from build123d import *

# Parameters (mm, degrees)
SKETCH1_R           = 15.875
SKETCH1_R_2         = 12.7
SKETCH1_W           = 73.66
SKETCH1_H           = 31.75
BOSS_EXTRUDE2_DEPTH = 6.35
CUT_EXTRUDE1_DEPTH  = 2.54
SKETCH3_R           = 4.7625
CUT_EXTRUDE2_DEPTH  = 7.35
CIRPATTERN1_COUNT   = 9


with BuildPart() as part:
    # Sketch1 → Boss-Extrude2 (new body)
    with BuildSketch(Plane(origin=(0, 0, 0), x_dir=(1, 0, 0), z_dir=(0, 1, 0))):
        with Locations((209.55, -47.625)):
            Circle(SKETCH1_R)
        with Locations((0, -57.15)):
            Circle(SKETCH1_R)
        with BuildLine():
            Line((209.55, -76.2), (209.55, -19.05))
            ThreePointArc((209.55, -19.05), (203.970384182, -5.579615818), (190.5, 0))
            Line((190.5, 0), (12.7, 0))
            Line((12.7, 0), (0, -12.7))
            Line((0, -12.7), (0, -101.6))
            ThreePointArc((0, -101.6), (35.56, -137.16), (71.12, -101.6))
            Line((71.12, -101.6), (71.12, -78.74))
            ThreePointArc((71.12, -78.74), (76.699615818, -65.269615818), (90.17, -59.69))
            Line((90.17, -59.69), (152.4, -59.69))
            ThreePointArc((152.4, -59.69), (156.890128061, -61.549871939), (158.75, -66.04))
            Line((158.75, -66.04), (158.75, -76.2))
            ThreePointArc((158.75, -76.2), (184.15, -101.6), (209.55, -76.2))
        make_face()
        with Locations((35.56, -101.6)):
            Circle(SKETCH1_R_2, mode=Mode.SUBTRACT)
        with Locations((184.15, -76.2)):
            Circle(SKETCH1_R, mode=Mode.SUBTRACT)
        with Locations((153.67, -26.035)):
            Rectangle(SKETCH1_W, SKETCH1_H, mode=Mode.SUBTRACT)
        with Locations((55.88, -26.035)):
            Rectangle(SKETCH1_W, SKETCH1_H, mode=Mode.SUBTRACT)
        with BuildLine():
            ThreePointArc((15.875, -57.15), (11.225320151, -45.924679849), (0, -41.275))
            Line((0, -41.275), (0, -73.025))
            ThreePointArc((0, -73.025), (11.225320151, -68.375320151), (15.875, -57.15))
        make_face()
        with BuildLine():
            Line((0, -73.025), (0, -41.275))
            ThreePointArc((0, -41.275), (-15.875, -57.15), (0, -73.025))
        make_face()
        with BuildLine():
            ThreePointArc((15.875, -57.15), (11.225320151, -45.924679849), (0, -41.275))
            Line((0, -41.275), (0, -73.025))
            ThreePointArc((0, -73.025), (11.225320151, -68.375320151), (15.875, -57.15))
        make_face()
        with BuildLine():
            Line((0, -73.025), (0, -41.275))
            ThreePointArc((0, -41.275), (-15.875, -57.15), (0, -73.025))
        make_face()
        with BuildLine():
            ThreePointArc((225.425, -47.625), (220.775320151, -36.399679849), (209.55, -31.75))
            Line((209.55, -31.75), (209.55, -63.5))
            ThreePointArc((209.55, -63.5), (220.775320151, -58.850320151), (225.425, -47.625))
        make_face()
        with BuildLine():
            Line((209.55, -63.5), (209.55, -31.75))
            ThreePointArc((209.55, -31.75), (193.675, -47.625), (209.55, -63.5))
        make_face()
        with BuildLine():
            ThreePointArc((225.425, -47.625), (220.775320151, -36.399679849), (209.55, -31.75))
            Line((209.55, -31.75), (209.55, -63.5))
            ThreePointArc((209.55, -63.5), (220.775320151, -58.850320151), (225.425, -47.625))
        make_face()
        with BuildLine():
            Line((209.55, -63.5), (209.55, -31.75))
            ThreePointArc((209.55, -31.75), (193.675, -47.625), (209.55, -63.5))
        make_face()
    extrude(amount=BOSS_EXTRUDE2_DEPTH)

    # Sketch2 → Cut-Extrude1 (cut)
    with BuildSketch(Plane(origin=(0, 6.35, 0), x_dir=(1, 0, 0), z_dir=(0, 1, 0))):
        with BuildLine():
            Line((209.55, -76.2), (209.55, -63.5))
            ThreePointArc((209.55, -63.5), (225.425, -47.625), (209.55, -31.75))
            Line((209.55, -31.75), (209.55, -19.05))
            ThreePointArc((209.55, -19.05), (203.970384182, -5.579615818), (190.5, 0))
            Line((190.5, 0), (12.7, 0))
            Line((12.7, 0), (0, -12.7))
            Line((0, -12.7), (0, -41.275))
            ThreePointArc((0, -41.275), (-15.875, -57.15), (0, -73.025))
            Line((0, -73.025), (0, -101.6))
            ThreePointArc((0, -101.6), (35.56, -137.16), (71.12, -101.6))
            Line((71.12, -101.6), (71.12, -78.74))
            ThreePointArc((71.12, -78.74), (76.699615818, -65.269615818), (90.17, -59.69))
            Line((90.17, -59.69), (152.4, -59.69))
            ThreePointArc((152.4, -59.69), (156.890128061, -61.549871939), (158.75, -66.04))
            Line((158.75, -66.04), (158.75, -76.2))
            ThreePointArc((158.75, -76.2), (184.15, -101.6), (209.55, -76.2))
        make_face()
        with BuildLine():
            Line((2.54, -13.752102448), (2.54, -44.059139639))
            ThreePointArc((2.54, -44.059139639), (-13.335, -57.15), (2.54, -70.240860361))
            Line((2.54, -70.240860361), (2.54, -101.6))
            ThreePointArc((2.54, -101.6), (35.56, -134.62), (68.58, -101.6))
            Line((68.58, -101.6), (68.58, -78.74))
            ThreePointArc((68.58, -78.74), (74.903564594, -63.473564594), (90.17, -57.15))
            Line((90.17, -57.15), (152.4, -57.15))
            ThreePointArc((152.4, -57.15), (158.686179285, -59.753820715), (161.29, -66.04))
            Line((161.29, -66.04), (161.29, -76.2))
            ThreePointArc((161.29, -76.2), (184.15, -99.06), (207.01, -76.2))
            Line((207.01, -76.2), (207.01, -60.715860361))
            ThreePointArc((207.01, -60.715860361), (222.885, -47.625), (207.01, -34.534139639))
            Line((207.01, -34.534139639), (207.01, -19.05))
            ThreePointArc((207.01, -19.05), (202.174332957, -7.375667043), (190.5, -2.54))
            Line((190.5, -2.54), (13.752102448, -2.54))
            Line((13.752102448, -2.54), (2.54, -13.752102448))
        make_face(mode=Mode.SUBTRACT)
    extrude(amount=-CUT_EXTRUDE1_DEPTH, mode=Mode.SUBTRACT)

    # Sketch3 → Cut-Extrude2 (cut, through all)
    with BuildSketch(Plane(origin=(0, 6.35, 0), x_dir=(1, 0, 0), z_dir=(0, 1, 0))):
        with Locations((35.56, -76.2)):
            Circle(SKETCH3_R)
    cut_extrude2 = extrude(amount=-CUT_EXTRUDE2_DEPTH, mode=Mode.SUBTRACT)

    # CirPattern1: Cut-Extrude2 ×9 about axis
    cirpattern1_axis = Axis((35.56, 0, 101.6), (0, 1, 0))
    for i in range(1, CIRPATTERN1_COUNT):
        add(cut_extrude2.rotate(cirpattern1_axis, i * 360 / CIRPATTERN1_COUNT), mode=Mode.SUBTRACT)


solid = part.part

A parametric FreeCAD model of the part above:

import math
import FreeCAD as App
import Part
import Sketcher

V = App.Vector
Q = App.Units.Quantity


def add_polygon(sketch, points):
    """Adds a closed chain of lines whose ends are joined by coincident constraints."""
    first, n = sketch.GeometryCount, len(points)
    for a, b in zip(points, points[1:] + points[:1]):
        sketch.addGeometry(Part.LineSegment(App.Vector(*a, 0), App.Vector(*b, 0)), False)
    for i in range(n):
        sketch.addConstraint(Sketcher.Constraint("Coincident", first + i, 2, first + (i + 1) % n, 1))

doc = App.newDocument("Part")
body = doc.addObject("PartDesign::Body", "Body")

# Sketch on XZ plane
sketch1 = body.newObject("Sketcher::SketchObject", "Sketch")
sketch1.AttachmentSupport = (doc.getObject("XZ_Plane"), [""])
sketch1.MapMode = "FlatFace"
sketch1.addGeometry(Part.ArcOfCircle(Part.Circle(V(36, 102, 0), V(0, 0, 1), 36), math.radians(0), math.radians(180)), False)  # 0
sketch1.addGeometry(Part.LineSegment(V(71, 102, 0), V(71, 79, 0)), False)  # 1
sketch1.addGeometry(Part.ArcOfCircle(Part.Circle(V(90, 79, 0), V(0, 0, 1), 19), math.radians(180), math.radians(270)), False)  # 2
sketch1.addGeometry(Part.LineSegment(V(90, 60, 0), V(152, 60, 0)), False)  # 3
sketch1.addGeometry(Part.ArcOfCircle(Part.Circle(V(152, 66, 0), V(0, 0, 1), 6), math.radians(-90), math.radians(0)), False)  # 4
sketch1.addGeometry(Part.LineSegment(V(159, 66, 0), V(159, 76, 0)), False)  # 5
sketch1.addGeometry(Part.ArcOfCircle(Part.Circle(V(184, 76, 0), V(0, 0, 1), 25), math.radians(0), math.radians(180)), False)  # 6
sketch1.addGeometry(Part.LineSegment(V(210, 76, 0), V(210, 64, 0)), False)  # 7
sketch1.addGeometry(Part.ArcOfCircle(Part.Circle(V(210, 48, 0), V(0, 0, 1), 16), math.radians(-90), math.radians(90)), False)  # 8
sketch1.addGeometry(Part.LineSegment(V(210, 32, 0), V(210, 19, 0)), False)  # 9
sketch1.addGeometry(Part.ArcOfCircle(Part.Circle(V(191, 19, 0), V(0, 0, 1), 19), math.radians(-90), math.radians(0)), False)  # 10
sketch1.addGeometry(Part.LineSegment(V(190, 0, 0), V(13, 0, 0)), False)  # 11
sketch1.addGeometry(Part.LineSegment(V(13, 0, 0), V(0, 13, 0)), False)  # 12
sketch1.addGeometry(Part.LineSegment(V(0, 13, 0), V(0, 41, 0)), False)  # 13
sketch1.addGeometry(Part.ArcOfCircle(Part.Circle(V(0, 57, 0), V(0, 0, 1), 16), math.radians(90), math.radians(270)), False)  # 14
sketch1.addGeometry(Part.LineSegment(V(0, 73, 0), V(0, 102, 0)), False)  # 15
sketch1.addGeometry(Part.Circle(V(36, 102, 0), V(0, 0, 1), 13), False)  # 16
sketch1.addGeometry(Part.Circle(V(184, 76, 0), V(0, 0, 1), 16), False)  # 17
add_polygon(sketch1, [(93, 42), (19, 42), (19, 10), (93, 10)])  # lines 18-21
add_polygon(sketch1, [(190, 42), (117, 42), (117, 10), (190, 10)])  # lines 22-25
sketch1.addConstraint([
    Sketcher.Constraint("Tangent", 0, 1, 1, 1),
    Sketcher.Constraint("Tangent", 1, 2, 2, 1),
    Sketcher.Constraint("Tangent", 2, 2, 3, 1),
    Sketcher.Constraint("Tangent", 3, 2, 4, 1),
    Sketcher.Constraint("Tangent", 4, 2, 5, 1),
    Sketcher.Constraint("Tangent", 5, 2, 6, 2),
    Sketcher.Constraint("Tangent", 6, 1, 7, 1),
    Sketcher.Constraint("Coincident", 7, 2, 8, 2),
    Sketcher.Constraint("Coincident", 8, 1, 9, 1),
    Sketcher.Constraint("Tangent", 9, 2, 10, 2),
    Sketcher.Constraint("Tangent", 10, 1, 11, 1),
    Sketcher.Constraint("Coincident", 11, 2, 12, 1),
    Sketcher.Constraint("Coincident", 12, 2, 13, 1),
    Sketcher.Constraint("Coincident", 13, 2, 14, 2),
    Sketcher.Constraint("Coincident", 14, 1, 15, 1),
    Sketcher.Constraint("Tangent", 15, 2, 0, 2),
    Sketcher.Constraint("Vertical", 1),
    Sketcher.Constraint("Horizontal", 3),
    Sketcher.Constraint("Vertical", 5),
    Sketcher.Constraint("Vertical", 7),
    Sketcher.Constraint("Vertical", 9),
    Sketcher.Constraint("Horizontal", 11),
    Sketcher.Constraint("Vertical", 13),
    Sketcher.Constraint("Vertical", 15),
    Sketcher.Constraint("Horizontal", 18),
    Sketcher.Constraint("Vertical", 19),
    Sketcher.Constraint("Horizontal", 20),
    Sketcher.Constraint("Vertical", 21),
    Sketcher.Constraint("Horizontal", 22),
    Sketcher.Constraint("Vertical", 23),
    Sketcher.Constraint("Horizontal", 24),
    Sketcher.Constraint("Vertical", 25),
    Sketcher.Constraint("Coincident", 16, 3, 0, 3),
    Sketcher.Constraint("Coincident", 17, 3, 6, 3),
    Sketcher.Constraint("Equal", 2, 10),
    Sketcher.Constraint("Equal", 8, 14),
    Sketcher.Constraint("Equal", 14, 17),
    Sketcher.Constraint("PointOnObject", 14, 3, -2),
    Sketcher.Constraint("PointOnObject", 10, 1, -1),
    Sketcher.Constraint("PointOnObject", 12, 2, -2),
    Sketcher.Constraint("PointOnObject", 14, 1, -2),
    Sketcher.Constraint("Horizontal", 21, 2, 22, 2),
    Sketcher.Constraint("Horizontal", 20, 2, 23, 2),
    Sketcher.Constraint("Vertical", 8, 3, 6, 1),
    Sketcher.Constraint("Vertical", 7, 2, 8, 1),
    Sketcher.Constraint("Vertical", 10, 1, 24, 2),
    Sketcher.Constraint("Equal", 20, 22),
    Sketcher.Constraint("Equal", 7, 9),
    Sketcher.Constraint("Equal", 13, 15),
    Sketcher.Constraint("Diameter", 16, Q("1 in")),
    Sketcher.Constraint("Radius", 6, Q("1 in")),
    Sketcher.Constraint("Radius", 0, Q("1.4 in")),
    Sketcher.Constraint("Diameter", 17, Q("1.25 in")),
    Sketcher.Constraint("DistanceX", 11, 2, 11, 1, Q("7 in")),
    Sketcher.Constraint("Radius", 2, Q("0.75 in")),
    Sketcher.Constraint("Radius", 4, Q("0.25 in")),
    Sketcher.Constraint("DistanceX", 18, 2, 18, 1, Q("2.9 in")),
    Sketcher.Constraint("DistanceY", 1, 2, 1, 1, Q("0.9 in")),
    Sketcher.Constraint("DistanceY", 5, 1, 5, 2, Q("0.4 in")),
    Sketcher.Constraint("DistanceY", 7, 2, 7, 1, Q("0.5 in")),
    Sketcher.Constraint("DistanceX", -1, 1, 4, 3, Q("6 in")),
    Sketcher.Constraint("Angle", 12, Q("135 deg")),
    Sketcher.Constraint("DistanceY", 19, 2, 19, 1, Q("1.25 in")),
    Sketcher.Constraint("DistanceY", -1, 1, 19, 2, Q("0.4 in")),
    Sketcher.Constraint("DistanceX", 2, 2, 20, 2, Q("0.1 in")),
])
pad1 = body.newObject("PartDesign::Pad", "Pad")
pad1.Profile = sketch1
pad1.Length = Q("0.25 in")
pad1.Reversed = True

# Sketch on XZ plane
sketch2 = body.newObject("Sketcher::SketchObject", "Sketch001")
sketch2.AttachmentSupport = (doc.getObject("XZ_Plane"), [""])
sketch2.MapMode = "FlatFace"
sketch2.AttachmentOffset = App.Placement(V(0, 0, -0.25 * 25.4), App.Rotation())
sketch2.addGeometry([
    Part.LineSegment(V(210, 76, 0), V(210, 64, 0)),  # 0
    Part.ArcOfCircle(Part.Circle(V(210, 48, 0), V(0, 0, 1), 16), math.radians(-90), math.radians(90)),  # 1
    Part.LineSegment(V(210, 32, 0), V(210, 19, 0)),  # 2
    Part.ArcOfCircle(Part.Circle(V(191, 19, 0), V(0, 0, 1), 19), math.radians(-90), math.radians(0)),  # 3
    Part.LineSegment(V(190, 0, 0), V(13, 0, 0)),  # 4
    Part.LineSegment(V(13, 0, 0), V(0, 13, 0)),  # 5
    Part.LineSegment(V(0, 13, 0), V(0, 41, 0)),  # 6
    Part.ArcOfCircle(Part.Circle(V(0, 57, 0), V(0, 0, 1), 16), math.radians(90), math.radians(270)),  # 7
    Part.LineSegment(V(0, 73, 0), V(0, 102, 0)),  # 8
    Part.ArcOfCircle(Part.Circle(V(36, 102, 0), V(0, 0, 1), 36), math.radians(0), math.radians(180)),  # 9
    Part.LineSegment(V(71, 102, 0), V(71, 79, 0)),  # 10
    Part.ArcOfCircle(Part.Circle(V(90, 79, 0), V(0, 0, 1), 19), math.radians(180), math.radians(270)),  # 11
    Part.LineSegment(V(90, 60, 0), V(152, 60, 0)),  # 12
    Part.ArcOfCircle(Part.Circle(V(152, 66, 0), V(0, 0, 1), 6), math.radians(-90), math.radians(0)),  # 13
    Part.LineSegment(V(159, 66, 0), V(159, 76, 0)),  # 14
    Part.ArcOfCircle(Part.Circle(V(184, 76, 0), V(0, 0, 1), 25), math.radians(0), math.radians(180)),  # 15
    Part.LineSegment(V(3, 44, 0), V(3, 14, 0)),  # 16
    Part.LineSegment(V(3, 14, 0), V(14, 3, 0)),  # 17
    Part.LineSegment(V(14, 3, 0), V(190, 3, 0)),  # 18
    Part.ArcOfCircle(Part.Circle(V(190, 19, 0), V(0, 0, 1), 17), math.radians(-90), math.radians(0)),  # 19
    Part.LineSegment(V(207, 19, 0), V(207, 35, 0)),  # 20
    Part.ArcOfCircle(Part.Circle(V(210, 48, 0), V(0, 0, 1), 13), math.radians(-101), math.radians(101)),  # 21
    Part.LineSegment(V(207, 61, 0), V(207, 76, 0)),  # 22
    Part.ArcOfCircle(Part.Circle(V(184, 76, 0), V(0, 0, 1), 23), math.radians(0), math.radians(180)),  # 23
    Part.LineSegment(V(161, 76, 0), V(161, 66, 0)),  # 24
    Part.ArcOfCircle(Part.Circle(V(152, 66, 0), V(0, 0, 1), 9), math.radians(-90), math.radians(0)),  # 25
    Part.LineSegment(V(152, 57, 0), V(90, 57, 0)),  # 26
    Part.ArcOfCircle(Part.Circle(V(90, 79, 0), V(0, 0, 1), 22), math.radians(180), math.radians(270)),  # 27
    Part.LineSegment(V(69, 79, 0), V(69, 102, 0)),  # 28
    Part.ArcOfCircle(Part.Circle(V(36, 102, 0), V(0, 0, 1), 33), math.radians(0), math.radians(180)),  # 29
    Part.LineSegment(V(3, 102, 0), V(3, 70, 0)),  # 30
    Part.ArcOfCircle(Part.Circle(V(0, 57, 0), V(0, 0, 1), 13), math.radians(79), math.radians(281)),  # 31
], False)
sketch2.addConstraint([
    Sketcher.Constraint("Coincident", 0, 2, 1, 2),
    Sketcher.Constraint("Coincident", 1, 1, 2, 1),
    Sketcher.Constraint("Tangent", 2, 2, 3, 2),
    Sketcher.Constraint("Tangent", 3, 1, 4, 1),
    Sketcher.Constraint("Coincident", 4, 2, 5, 1),
    Sketcher.Constraint("Coincident", 5, 2, 6, 1),
    Sketcher.Constraint("Coincident", 6, 2, 7, 2),
    Sketcher.Constraint("Coincident", 7, 1, 8, 1),
    Sketcher.Constraint("Tangent", 8, 2, 9, 2),
    Sketcher.Constraint("Tangent", 9, 1, 10, 1),
    Sketcher.Constraint("Tangent", 10, 2, 11, 1),
    Sketcher.Constraint("Tangent", 11, 2, 12, 1),
    Sketcher.Constraint("Tangent", 12, 2, 13, 1),
    Sketcher.Constraint("Tangent", 13, 2, 14, 1),
    Sketcher.Constraint("Tangent", 14, 2, 15, 2),
    Sketcher.Constraint("Tangent", 15, 1, 0, 1),
    Sketcher.Constraint("Coincident", 16, 2, 17, 1),
    Sketcher.Constraint("Coincident", 17, 2, 18, 1),
    Sketcher.Constraint("Tangent", 18, 2, 19, 1),
    Sketcher.Constraint("Tangent", 19, 2, 20, 1),
    Sketcher.Constraint("Coincident", 20, 2, 21, 1),
    Sketcher.Constraint("Coincident", 21, 2, 22, 1),
    Sketcher.Constraint("Tangent", 22, 2, 23, 1),
    Sketcher.Constraint("Tangent", 23, 2, 24, 1),
    Sketcher.Constraint("Tangent", 24, 2, 25, 2),
    Sketcher.Constraint("Tangent", 25, 1, 26, 1),
    Sketcher.Constraint("Tangent", 26, 2, 27, 2),
    Sketcher.Constraint("Tangent", 27, 1, 28, 1),
    Sketcher.Constraint("Tangent", 28, 2, 29, 1),
    Sketcher.Constraint("Tangent", 29, 2, 30, 1),
    Sketcher.Constraint("Coincident", 30, 2, 31, 1),
    Sketcher.Constraint("Coincident", 31, 2, 16, 1),
    Sketcher.Constraint("Vertical", 0),
    Sketcher.Constraint("Vertical", 2),
    Sketcher.Constraint("Horizontal", 4),
    Sketcher.Constraint("Vertical", 6),
    Sketcher.Constraint("Vertical", 8),
    Sketcher.Constraint("Vertical", 10),
    Sketcher.Constraint("Horizontal", 12),
    Sketcher.Constraint("Vertical", 14),
    Sketcher.Constraint("Vertical", 16),
    Sketcher.Constraint("Horizontal", 18),
    Sketcher.Constraint("Vertical", 20),
    Sketcher.Constraint("Vertical", 22),
    Sketcher.Constraint("Vertical", 24),
    Sketcher.Constraint("Horizontal", 26),
    Sketcher.Constraint("Vertical", 28),
    Sketcher.Constraint("Vertical", 30),
    Sketcher.Constraint("Coincident", 19, 3, 3, 3),
    Sketcher.Constraint("Coincident", 21, 3, 1, 3),
    Sketcher.Constraint("Coincident", 23, 3, 15, 3),
    Sketcher.Constraint("Coincident", 25, 3, 13, 3),
    Sketcher.Constraint("Coincident", 27, 3, 11, 3),
    Sketcher.Constraint("Coincident", 29, 3, 9, 3),
    Sketcher.Constraint("Coincident", 31, 3, 7, 3),
    Sketcher.Constraint("Equal", 1, 7),
    Sketcher.Constraint("Equal", 3, 11),
    Sketcher.Constraint("Equal", 21, 31),
    Sketcher.Constraint("PointOnObject", 7, 3, -2),
    Sketcher.Constraint("PointOnObject", 3, 1, -1),
    Sketcher.Constraint("PointOnObject", 5, 2, -2),
    Sketcher.Constraint("PointOnObject", 7, 1, -2),
    Sketcher.Constraint("Parallel", 5, 17),
    Sketcher.Constraint("Horizontal", 31, 3, 25, 1),
    Sketcher.Constraint("Vertical", 21, 3, 0, 2),
    Sketcher.Constraint("Vertical", 0, 2, 1, 1),
    Sketcher.Constraint("Vertical", 20, 2, 21, 2),
    Sketcher.Constraint("Vertical", 16, 2, 29, 2),
    Sketcher.Constraint("Equal", 0, 2),
    Sketcher.Constraint("Equal", 6, 8),
    Sketcher.Constraint("Radius", 15, Q("1 in")),
    Sketcher.Constraint("Radius", 9, Q("1.4 in")),
    Sketcher.Constraint("Radius", 23, Q("0.9 in")),
    Sketcher.Constraint("DistanceX", 4, 2, 4, 1, Q("7 in")),
    Sketcher.Constraint("Radius", 3, Q("0.75 in")),
    Sketcher.Constraint("Radius", 13, Q("0.25 in")),
    Sketcher.Constraint("DistanceY", 0, 2, 0, 1, Q("0.5 in")),
    Sketcher.Constraint("DistanceY", 10, 2, 10, 1, Q("0.9 in")),
    Sketcher.Constraint("DistanceY", 14, 1, 14, 2, Q("0.4 in")),
    Sketcher.Constraint("DistanceY", -1, 1, 9, 3, Q("4 in")),
    Sketcher.Constraint("DistanceX", -1, 1, 13, 3, Q("6 in")),
    Sketcher.Constraint("Radius", 21, Q("0.525 in")),
    Sketcher.Constraint("DistanceX", 18, 1, 18, 2, 176.747898),
])
pocket1 = body.newObject("PartDesign::Pocket", "Pocket")
pocket1.Profile = sketch2
pocket1.Length = Q("0.1 in")
pocket1.Reversed = True

# Sketch on XZ plane
sketch3 = body.newObject("Sketcher::SketchObject", "Sketch002")
sketch3.AttachmentSupport = (doc.getObject("XZ_Plane"), [""])
sketch3.MapMode = "FlatFace"
sketch3.AttachmentOffset = App.Placement(V(0, 0, -0.25 * 25.4), App.Rotation())
sketch3.addGeometry(Part.Circle(V(35.6, 76.2, 0), V(0, 0, 1), 4.8), False)
sketch3.addConstraint([
    Sketcher.Constraint("Diameter", 0, Q("0.375 in")),
    Sketcher.Constraint("DistanceY", -1, 1, 0, 3, Q("3 in")),
    Sketcher.Constraint("DistanceX", -1, 1, 0, 3, Q("1.4 in")),
])
pocket2 = body.newObject("PartDesign::Pocket", "Pocket001")
pocket2.Profile = sketch3
pocket2.Type = "ThroughAll"
pocket2.Reversed = True
doc.recompute()

datumline = body.newObject("PartDesign::Line", "DatumLine")
datumline.Placement = App.Placement(V(35.56, 0, 101.6), App.Rotation(V(0, 0, 1), V(0, 1, 0)))
polarpattern = body.newObject("PartDesign::PolarPattern", "PolarPattern")
polarpattern.Originals = [pocket2]
polarpattern.Axis = (datumline, [""])
polarpattern.Angle = 360
polarpattern.Occurrences = 9
body.Tip = polarpattern

doc.recompute()
